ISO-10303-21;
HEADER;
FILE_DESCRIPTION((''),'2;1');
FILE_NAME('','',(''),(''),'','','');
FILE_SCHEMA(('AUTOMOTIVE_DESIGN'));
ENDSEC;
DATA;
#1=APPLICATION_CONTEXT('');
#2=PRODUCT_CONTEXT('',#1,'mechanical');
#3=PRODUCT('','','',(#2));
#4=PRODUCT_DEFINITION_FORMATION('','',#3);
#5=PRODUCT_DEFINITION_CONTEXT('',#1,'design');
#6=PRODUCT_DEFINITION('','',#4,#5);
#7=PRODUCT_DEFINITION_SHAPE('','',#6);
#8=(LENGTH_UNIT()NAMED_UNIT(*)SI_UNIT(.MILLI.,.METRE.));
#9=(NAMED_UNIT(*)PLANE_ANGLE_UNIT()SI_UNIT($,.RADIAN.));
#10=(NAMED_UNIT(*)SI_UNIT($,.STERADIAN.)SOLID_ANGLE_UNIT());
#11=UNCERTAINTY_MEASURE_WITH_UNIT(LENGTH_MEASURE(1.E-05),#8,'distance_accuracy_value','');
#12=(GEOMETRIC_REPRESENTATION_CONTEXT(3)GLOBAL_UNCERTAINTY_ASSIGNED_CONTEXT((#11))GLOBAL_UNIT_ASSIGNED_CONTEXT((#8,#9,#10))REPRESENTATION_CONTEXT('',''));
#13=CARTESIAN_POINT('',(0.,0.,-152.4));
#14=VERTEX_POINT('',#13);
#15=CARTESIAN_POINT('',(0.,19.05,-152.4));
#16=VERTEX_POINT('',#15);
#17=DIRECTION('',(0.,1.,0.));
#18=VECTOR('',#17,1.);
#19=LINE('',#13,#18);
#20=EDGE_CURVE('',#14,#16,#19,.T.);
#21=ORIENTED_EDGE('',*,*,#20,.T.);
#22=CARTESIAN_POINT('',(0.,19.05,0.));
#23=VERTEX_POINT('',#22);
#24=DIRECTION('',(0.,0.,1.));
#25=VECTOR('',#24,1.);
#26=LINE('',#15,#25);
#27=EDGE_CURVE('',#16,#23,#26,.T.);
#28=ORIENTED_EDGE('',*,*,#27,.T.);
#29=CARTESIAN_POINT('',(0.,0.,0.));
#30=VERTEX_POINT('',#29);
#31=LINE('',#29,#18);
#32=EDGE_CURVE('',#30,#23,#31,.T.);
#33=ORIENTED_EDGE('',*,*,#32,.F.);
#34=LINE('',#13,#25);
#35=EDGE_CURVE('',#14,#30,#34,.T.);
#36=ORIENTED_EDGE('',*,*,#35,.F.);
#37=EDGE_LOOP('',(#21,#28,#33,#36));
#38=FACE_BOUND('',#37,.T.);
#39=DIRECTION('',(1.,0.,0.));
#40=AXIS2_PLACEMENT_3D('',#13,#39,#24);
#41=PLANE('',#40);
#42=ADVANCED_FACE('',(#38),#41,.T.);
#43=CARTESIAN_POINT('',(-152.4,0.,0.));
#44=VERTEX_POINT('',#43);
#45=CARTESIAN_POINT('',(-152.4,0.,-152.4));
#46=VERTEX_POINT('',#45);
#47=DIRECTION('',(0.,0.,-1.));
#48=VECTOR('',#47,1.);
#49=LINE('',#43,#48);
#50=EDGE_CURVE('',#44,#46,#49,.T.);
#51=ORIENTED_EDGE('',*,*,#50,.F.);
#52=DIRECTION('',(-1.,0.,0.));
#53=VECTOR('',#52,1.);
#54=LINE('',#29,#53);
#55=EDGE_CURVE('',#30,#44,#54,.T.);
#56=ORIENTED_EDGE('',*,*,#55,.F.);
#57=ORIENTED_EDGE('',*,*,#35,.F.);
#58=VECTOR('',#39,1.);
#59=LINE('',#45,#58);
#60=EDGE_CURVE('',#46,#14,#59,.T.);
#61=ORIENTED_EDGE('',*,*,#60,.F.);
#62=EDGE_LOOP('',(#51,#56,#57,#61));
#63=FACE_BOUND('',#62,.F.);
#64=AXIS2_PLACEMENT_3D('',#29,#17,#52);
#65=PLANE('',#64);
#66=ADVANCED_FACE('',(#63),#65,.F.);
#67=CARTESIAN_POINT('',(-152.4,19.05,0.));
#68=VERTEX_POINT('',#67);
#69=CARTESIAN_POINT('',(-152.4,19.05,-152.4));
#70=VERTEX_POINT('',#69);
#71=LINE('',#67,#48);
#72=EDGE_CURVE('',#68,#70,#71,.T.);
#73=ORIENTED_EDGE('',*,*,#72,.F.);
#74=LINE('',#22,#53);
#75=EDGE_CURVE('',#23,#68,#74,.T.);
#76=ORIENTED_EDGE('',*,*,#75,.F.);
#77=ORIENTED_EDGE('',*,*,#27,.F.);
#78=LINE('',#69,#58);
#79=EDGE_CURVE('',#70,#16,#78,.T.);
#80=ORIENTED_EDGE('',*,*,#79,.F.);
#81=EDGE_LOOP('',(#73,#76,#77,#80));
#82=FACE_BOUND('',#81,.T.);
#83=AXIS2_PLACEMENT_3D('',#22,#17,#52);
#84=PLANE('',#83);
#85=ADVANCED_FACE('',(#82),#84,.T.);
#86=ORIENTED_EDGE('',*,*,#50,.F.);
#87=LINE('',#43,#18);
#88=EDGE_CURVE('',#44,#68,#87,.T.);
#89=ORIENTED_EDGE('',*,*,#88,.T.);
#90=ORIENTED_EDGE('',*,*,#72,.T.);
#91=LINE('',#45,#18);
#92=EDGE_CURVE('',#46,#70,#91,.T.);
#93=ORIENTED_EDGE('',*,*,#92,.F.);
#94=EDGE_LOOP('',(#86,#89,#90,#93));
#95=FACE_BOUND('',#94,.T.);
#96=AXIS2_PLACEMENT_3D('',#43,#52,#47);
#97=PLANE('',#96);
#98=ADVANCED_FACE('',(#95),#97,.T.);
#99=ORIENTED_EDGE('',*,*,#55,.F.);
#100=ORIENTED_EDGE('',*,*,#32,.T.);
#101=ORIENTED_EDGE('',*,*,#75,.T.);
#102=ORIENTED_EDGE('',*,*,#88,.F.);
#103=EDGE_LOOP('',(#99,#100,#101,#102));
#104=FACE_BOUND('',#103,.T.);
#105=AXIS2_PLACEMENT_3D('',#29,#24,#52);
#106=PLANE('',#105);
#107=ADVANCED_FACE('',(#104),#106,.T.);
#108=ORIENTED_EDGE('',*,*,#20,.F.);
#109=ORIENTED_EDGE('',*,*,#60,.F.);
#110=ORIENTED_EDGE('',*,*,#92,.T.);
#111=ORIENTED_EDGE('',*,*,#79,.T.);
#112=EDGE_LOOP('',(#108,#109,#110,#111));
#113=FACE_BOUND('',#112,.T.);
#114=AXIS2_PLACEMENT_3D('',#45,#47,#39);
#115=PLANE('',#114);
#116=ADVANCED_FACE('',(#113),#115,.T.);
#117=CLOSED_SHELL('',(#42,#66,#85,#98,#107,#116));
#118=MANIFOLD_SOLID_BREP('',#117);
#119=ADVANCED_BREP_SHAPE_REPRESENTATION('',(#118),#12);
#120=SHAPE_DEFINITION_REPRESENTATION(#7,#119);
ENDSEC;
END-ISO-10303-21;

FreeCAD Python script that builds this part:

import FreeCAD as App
import Part
import Sketcher
Q = App.Units.Quantity

doc = App.newDocument("Part")
body = doc.addObject("PartDesign::Body", "Body")

sketch1 = body.newObject("Sketcher::SketchObject", "Sketch")
sketch1.AttachmentSupport = (doc.getObject("XZ_Plane"), [""])
sketch1.MapMode = "FlatFace"
sketch1.addGeometry([
    Part.LineSegment(App.Vector(-152, 0, 0), App.Vector(0, 0, 0)),
    Part.LineSegment(App.Vector(0, 0, 0), App.Vector(0, -152, 0)),
    Part.LineSegment(App.Vector(0, -152, 0), App.Vector(-152, -152, 0)),
    Part.LineSegment(App.Vector(-152, -152, 0), App.Vector(-152, 0, 0)),
], False)
sketch1.addConstraint([
    Sketcher.Constraint("Coincident", 0, 2, 1, 1),
    Sketcher.Constraint("Coincident", 1, 2, 2, 1),
    Sketcher.Constraint("Coincident", 2, 2, 3, 1),
    Sketcher.Constraint("Coincident", 3, 2, 0, 1),
    Sketcher.Constraint("Horizontal", 0),
    Sketcher.Constraint("Vertical", 1),
    Sketcher.Constraint("Horizontal", 2),
    Sketcher.Constraint("Vertical", 3),
    Sketcher.Constraint("Coincident", 0, 2, -1, 1),
    Sketcher.Constraint("Equal", 2, 1),
    Sketcher.Constraint("DistanceX", 0, 1, 0, 2, Q("6 in")),
])
pad1 = body.newObject("PartDesign::Pad", "Pad")
pad1.Profile = sketch1
pad1.Length = Q("0.75 in")
pad1.Reversed = True

doc.recompute()
